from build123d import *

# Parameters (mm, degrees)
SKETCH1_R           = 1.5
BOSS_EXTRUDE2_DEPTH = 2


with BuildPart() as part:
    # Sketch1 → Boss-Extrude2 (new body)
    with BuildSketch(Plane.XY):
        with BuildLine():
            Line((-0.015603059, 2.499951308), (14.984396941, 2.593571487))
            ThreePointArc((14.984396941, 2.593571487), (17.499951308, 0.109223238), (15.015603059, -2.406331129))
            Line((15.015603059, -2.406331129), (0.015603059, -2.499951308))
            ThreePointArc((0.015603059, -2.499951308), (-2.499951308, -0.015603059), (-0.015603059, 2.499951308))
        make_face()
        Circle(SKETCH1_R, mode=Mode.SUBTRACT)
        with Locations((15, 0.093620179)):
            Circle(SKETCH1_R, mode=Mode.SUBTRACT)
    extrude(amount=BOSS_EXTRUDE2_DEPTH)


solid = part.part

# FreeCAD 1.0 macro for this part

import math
import FreeCAD as App
import Part
import Sketcher
from FreeCAD import Vector

doc = App.newDocument("Part")
params = doc.addObject("Spreadsheet::Sheet", "Params")
for row, (alias, value) in enumerate([
    ("sketch1_diameter", "3 mm"),
    ("sketch1_radius", "2.5 mm"),
    ("pad1_length", "2 mm"),
], start=1):
    params.set(f"A{row}", alias)
    params.set(f"B{row}", "=" + value)
    params.setAlias(f"B{row}", alias)

body = doc.addObject("PartDesign::Body", "Body")

sketch1 = body.newObject("Sketcher::SketchObject", "Sketch")
sketch1.AttachmentSupport = (doc.getObject("XY_Plane"), [""])
sketch1.MapMode = "FlatFace"
sketch1.addGeometry([
    Part.LineSegment(Vector(14.984397, 2.593571, 0), Vector(-0.015603, 2.499951, 0)),
    Part.ArcOfCircle(Part.Circle(Vector(0, 0, 0), Vector(0, 0, 1), 2.5), math.radians(90.357598), math.radians(270.357598)),
    Part.LineSegment(Vector(0.015603, -2.499951, 0), Vector(15.015603, -2.406331, 0)),
    Part.ArcOfCircle(Part.Circle(Vector(15, 0.09362, 0), Vector(0, 0, 1), 2.5), math.radians(-89.642402), math.radians(90.357598)),
    Part.Circle(Vector(0, 0, 0), Vector(0, 0, 1), 1.5),
    Part.Circle(Vector(15, 0.09362, 0), Vector(0, 0, 1), 1.5),
], False)
sketch1.addConstraint([
    Sketcher.Constraint("Tangent", 0, 2, 1, 1),
    Sketcher.Constraint("Tangent", 1, 2, 2, 1),
    Sketcher.Constraint("Tangent", 2, 2, 3, 1),
    Sketcher.Constraint("Tangent", 3, 2, 0, 1),
    Sketcher.Constraint("Coincident", 1, 3, -1, 1),
    Sketcher.Constraint("Coincident", 4, 3, -1, 1),
    Sketcher.Constraint("Coincident", 5, 3, 3, 3),
    Sketcher.Constraint("Equal", 1, 3),
    Sketcher.Constraint("Equal", 4, 5),
    Sketcher.Constraint("Diameter", 4, 3.0),
    Sketcher.Constraint("Radius", 1, 2.5),
    Sketcher.Constraint("DistanceX", -1, 1, 3, 3, 15.0),
    Sketcher.Constraint("DistanceY", -1, 1, 3, 3, 0.09362),
])
sketch1.setExpression("Constraints[9]", "Params.sketch1_diameter")
sketch1.setExpression("Constraints[10]", "Params.sketch1_radius")
pad1 = body.newObject("PartDesign::Pad", "Pad")
pad1.Profile = sketch1
pad1.setExpression("Length", "Params.pad1_length")

doc.recompute()
